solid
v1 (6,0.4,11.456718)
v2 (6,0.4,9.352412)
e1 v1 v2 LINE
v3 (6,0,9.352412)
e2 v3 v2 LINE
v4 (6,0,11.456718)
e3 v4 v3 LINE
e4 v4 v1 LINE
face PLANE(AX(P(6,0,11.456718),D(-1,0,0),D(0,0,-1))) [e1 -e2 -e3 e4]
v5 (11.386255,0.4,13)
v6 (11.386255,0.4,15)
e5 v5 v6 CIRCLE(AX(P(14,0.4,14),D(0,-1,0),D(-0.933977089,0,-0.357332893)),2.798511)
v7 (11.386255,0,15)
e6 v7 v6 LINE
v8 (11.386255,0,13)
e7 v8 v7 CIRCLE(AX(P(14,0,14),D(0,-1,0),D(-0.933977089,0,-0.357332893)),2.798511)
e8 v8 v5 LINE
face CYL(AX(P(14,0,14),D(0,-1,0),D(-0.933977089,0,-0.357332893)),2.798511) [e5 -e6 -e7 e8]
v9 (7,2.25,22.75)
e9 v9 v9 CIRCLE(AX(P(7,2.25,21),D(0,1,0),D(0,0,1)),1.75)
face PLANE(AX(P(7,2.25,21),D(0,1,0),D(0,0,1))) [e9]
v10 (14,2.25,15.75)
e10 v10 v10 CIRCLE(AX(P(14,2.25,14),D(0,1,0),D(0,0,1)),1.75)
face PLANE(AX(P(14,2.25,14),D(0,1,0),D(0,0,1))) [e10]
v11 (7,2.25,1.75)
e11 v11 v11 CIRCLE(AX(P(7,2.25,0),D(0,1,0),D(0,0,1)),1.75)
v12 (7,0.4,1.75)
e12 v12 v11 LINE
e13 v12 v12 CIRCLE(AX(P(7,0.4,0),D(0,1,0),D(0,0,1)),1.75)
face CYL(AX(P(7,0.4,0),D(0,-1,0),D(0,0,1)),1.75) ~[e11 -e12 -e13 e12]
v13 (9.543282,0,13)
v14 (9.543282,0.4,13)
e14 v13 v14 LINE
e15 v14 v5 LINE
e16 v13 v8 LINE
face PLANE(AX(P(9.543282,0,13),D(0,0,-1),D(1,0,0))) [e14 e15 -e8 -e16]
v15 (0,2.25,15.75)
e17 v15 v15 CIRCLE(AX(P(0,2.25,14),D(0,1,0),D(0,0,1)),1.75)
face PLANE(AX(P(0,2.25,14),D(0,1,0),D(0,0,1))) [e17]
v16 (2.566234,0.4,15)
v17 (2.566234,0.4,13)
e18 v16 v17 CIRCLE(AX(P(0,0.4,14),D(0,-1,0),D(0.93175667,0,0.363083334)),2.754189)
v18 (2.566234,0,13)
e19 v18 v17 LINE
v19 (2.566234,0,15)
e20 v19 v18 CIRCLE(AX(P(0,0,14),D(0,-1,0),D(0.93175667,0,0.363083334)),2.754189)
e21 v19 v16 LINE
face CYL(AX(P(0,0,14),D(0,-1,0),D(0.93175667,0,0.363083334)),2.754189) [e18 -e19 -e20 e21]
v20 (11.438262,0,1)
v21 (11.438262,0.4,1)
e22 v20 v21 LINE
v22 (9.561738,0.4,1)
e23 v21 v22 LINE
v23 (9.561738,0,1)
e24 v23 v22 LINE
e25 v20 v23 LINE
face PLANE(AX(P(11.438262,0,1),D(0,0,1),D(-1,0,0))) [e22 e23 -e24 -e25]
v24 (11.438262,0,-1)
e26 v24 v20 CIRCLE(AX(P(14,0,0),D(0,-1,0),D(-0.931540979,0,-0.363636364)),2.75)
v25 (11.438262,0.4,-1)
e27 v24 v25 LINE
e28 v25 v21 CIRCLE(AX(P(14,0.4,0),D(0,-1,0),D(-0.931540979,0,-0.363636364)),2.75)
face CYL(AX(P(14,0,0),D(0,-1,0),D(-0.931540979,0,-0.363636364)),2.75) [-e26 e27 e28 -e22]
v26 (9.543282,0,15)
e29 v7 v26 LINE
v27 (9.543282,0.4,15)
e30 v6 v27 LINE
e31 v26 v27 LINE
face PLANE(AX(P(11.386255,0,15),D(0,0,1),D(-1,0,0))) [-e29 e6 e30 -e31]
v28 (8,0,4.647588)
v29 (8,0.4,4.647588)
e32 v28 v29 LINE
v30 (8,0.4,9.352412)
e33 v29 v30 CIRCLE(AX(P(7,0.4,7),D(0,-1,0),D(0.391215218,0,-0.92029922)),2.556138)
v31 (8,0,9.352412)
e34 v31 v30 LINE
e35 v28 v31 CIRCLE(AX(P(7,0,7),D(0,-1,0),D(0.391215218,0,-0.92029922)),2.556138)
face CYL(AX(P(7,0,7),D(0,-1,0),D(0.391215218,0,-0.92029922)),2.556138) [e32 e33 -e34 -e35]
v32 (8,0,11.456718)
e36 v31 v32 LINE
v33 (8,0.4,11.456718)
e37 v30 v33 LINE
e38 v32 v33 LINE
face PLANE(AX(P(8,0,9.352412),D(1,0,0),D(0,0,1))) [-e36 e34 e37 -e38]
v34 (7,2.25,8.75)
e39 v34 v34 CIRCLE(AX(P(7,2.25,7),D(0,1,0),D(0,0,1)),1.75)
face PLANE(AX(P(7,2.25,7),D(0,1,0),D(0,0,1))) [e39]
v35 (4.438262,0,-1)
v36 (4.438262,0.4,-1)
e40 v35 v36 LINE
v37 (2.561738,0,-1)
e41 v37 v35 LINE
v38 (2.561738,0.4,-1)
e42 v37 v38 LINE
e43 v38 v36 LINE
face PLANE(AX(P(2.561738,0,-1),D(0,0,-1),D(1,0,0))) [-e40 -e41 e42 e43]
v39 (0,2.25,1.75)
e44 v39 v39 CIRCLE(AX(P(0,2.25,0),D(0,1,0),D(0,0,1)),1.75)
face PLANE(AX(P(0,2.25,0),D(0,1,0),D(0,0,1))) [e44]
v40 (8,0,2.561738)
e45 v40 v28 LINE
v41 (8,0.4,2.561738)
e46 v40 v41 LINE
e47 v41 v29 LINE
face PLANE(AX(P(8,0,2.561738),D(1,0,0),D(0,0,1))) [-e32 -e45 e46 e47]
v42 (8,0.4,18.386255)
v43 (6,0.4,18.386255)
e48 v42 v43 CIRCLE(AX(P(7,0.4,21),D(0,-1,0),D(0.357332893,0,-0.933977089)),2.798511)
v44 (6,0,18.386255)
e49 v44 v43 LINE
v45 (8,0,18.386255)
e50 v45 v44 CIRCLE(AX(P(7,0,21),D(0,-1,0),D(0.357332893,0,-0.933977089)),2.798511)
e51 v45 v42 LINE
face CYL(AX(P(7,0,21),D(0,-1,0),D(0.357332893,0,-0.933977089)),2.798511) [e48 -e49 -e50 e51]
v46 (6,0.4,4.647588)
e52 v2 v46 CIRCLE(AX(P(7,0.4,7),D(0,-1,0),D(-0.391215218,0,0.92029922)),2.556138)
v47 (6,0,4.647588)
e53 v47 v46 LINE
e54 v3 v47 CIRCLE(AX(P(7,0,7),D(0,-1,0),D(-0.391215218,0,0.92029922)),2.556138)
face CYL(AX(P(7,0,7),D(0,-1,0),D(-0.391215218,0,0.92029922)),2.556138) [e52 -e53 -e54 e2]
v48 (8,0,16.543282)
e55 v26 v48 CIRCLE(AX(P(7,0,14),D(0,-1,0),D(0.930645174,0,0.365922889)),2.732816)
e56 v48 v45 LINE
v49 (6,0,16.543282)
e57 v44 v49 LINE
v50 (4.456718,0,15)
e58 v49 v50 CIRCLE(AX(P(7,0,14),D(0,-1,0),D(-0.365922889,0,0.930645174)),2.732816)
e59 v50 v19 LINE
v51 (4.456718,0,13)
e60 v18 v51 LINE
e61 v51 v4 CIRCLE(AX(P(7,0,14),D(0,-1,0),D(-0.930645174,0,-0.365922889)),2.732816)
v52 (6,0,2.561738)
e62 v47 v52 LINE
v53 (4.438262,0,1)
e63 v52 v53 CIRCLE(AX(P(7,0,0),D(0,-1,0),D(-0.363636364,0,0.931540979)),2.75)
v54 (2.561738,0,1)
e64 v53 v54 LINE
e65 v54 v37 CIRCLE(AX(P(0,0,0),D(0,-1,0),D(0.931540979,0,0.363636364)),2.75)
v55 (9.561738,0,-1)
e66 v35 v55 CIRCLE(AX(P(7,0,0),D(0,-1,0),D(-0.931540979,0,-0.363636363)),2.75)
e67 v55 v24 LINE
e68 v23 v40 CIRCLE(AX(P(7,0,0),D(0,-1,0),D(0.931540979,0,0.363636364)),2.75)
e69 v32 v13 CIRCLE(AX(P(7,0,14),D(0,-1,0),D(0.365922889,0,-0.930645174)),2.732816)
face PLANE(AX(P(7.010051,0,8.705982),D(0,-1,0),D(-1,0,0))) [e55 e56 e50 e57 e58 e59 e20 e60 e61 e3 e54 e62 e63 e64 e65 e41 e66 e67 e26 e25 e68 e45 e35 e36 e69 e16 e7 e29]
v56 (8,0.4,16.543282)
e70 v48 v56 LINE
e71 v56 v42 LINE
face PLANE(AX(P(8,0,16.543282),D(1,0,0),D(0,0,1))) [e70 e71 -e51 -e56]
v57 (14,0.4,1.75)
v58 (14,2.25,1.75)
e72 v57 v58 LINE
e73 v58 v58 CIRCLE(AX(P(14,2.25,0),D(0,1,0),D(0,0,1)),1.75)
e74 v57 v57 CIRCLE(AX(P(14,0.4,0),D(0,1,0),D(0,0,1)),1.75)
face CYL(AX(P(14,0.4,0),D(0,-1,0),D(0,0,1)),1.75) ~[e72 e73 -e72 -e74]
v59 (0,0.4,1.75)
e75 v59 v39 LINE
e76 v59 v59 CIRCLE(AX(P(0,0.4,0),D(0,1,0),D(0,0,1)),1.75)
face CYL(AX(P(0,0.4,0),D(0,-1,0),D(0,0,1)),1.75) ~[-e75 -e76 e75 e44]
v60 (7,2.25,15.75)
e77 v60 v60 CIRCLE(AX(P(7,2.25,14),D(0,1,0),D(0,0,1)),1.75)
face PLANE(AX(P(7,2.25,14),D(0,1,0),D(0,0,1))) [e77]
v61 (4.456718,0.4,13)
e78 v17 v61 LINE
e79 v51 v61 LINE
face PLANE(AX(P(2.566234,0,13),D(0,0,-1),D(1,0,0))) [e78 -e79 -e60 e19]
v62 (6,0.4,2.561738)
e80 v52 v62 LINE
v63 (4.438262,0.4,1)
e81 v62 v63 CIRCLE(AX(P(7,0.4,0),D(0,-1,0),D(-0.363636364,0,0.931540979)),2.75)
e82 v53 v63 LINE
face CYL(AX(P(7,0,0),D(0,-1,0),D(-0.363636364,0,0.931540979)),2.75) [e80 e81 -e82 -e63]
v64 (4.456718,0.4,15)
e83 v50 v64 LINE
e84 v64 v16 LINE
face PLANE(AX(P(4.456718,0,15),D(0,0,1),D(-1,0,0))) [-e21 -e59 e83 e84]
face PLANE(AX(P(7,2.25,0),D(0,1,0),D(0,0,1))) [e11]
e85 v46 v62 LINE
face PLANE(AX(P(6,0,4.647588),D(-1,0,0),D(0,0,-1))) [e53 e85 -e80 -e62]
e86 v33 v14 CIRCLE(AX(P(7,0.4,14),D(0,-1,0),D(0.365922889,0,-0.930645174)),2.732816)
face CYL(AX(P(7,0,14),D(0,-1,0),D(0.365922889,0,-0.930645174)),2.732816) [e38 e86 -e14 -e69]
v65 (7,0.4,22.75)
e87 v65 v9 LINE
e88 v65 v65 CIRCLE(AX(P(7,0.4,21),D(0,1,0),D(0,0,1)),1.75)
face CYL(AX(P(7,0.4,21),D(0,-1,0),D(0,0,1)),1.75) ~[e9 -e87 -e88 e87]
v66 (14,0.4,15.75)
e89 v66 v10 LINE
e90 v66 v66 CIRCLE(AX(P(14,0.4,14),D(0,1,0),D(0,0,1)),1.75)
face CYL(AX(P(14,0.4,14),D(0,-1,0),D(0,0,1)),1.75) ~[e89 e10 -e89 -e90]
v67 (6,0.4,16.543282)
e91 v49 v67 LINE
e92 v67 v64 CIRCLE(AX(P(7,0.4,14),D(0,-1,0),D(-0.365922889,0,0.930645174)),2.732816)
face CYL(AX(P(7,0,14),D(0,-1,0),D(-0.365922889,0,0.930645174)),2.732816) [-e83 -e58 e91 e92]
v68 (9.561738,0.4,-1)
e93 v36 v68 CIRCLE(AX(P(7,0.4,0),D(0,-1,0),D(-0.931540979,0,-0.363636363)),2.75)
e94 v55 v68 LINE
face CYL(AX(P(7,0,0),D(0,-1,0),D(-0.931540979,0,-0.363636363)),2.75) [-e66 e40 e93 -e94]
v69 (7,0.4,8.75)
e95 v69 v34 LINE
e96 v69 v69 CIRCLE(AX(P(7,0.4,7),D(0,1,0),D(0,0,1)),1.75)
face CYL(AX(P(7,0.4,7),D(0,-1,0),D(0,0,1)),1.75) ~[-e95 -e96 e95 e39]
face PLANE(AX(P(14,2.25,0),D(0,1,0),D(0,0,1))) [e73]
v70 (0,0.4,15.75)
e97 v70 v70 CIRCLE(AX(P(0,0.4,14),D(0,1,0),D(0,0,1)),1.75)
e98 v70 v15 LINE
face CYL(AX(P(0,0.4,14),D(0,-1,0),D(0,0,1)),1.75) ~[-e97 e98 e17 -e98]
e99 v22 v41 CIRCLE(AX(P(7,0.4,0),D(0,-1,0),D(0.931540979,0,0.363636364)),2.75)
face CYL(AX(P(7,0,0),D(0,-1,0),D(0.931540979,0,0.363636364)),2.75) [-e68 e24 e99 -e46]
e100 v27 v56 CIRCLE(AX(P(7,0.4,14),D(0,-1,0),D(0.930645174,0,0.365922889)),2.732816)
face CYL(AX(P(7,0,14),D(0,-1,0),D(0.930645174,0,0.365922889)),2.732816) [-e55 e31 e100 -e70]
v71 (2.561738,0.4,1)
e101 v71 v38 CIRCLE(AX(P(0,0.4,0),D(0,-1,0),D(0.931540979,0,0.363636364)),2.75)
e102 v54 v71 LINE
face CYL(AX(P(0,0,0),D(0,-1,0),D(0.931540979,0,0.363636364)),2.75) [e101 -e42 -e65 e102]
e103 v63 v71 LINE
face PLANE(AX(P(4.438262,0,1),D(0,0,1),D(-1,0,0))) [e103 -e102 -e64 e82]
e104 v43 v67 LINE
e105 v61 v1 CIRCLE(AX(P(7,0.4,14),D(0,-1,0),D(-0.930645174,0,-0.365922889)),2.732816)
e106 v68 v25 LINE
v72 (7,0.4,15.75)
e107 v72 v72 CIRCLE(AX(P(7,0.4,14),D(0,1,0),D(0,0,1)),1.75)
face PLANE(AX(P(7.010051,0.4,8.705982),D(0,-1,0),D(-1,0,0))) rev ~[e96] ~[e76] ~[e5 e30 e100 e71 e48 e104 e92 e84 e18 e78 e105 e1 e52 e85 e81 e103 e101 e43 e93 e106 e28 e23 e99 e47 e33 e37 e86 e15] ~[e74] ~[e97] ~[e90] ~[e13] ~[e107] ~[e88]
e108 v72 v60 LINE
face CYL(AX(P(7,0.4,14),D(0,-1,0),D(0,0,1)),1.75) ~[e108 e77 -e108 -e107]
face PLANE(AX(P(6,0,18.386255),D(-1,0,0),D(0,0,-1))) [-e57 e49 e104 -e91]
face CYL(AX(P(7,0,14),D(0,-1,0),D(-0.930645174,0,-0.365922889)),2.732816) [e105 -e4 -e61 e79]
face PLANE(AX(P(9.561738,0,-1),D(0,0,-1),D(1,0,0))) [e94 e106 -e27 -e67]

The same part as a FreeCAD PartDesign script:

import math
import FreeCAD as App
import Part
import Sketcher
Q = App.Units.Quantity

doc = App.newDocument("Part")
params = doc.addObject("Spreadsheet::Sheet", "Params")
for row, (alias, value) in enumerate([
    ("sketch1_radius", "2.75 mm"),
    ("pad1_length", "0.4 mm"),
    ("sketch2_diameter", "3.5 mm"),
    ("pad2_length", "1.85 mm"),
], start=1):
    params.set(f"A{row}", alias)
    params.set(f"B{row}", "=" + value)
    params.setAlias(f"B{row}", alias)

body = doc.addObject("PartDesign::Body", "Body")

sketch1 = body.newObject("Sketcher::SketchObject", "Sketch")
sketch1.AttachmentSupport = (doc.getObject("XZ_Plane"), [""])
sketch1.MapMode = "FlatFace"
sketch1.addGeometry([
    Part.LineSegment(App.Vector(4.438262, -1, 0), App.Vector(2.561738, -1, 0)),
    Part.ArcOfCircle(Part.Circle(App.Vector(0, 0, 0), App.Vector(0, 0, 1), 2.75), math.radians(21.323686), math.radians(338.676314)),
    Part.LineSegment(App.Vector(2.561738, 1, 0), App.Vector(4.438262, 1, 0)),
    Part.ArcOfCircle(Part.Circle(App.Vector(7, 0, 0), App.Vector(0, 0, 1), 2.75), math.radians(111.323686), math.radians(158.676314)),
    Part.LineSegment(App.Vector(6, 2.561738, 0), App.Vector(6, 4.647588, 0)),
    Part.ArcOfCircle(Part.Circle(App.Vector(7, 7, 0), App.Vector(0, 0, 1), 2.556138), math.radians(113.030135), math.radians(246.969865)),
    Part.LineSegment(App.Vector(6, 9.352412, 0), App.Vector(6, 11.456718, 0)),
    Part.ArcOfCircle(Part.Circle(App.Vector(7, 14, 0), App.Vector(0, 0, 1), 2.732816), math.radians(-158.53561), math.radians(-111.46439)),
    Part.LineSegment(App.Vector(4.456718, 13, 0), App.Vector(2.566234, 13, 0)),
    Part.ArcOfCircle(Part.Circle(App.Vector(0, 14, 0), App.Vector(0, 0, 1), 2.754189), math.radians(21.289675), math.radians(338.710325)),
    Part.LineSegment(App.Vector(2.566234, 15, 0), App.Vector(4.456718, 15, 0)),
    Part.ArcOfCircle(Part.Circle(App.Vector(7, 14, 0), App.Vector(0, 0, 1), 2.732816), math.radians(111.46439), math.radians(158.53561)),
    Part.LineSegment(App.Vector(6, 16.543282, 0), App.Vector(6, 18.386255, 0)),
    Part.ArcOfCircle(Part.Circle(App.Vector(7, 21, 0), App.Vector(0, 0, 1), 2.798511), math.radians(-69.06351), math.radians(249.06351)),
    Part.LineSegment(App.Vector(8, 18.386255, 0), App.Vector(8, 16.543282, 0)),
    Part.ArcOfCircle(Part.Circle(App.Vector(7, 14, 0), App.Vector(0, 0, 1), 2.732816), math.radians(21.46439), math.radians(68.53561)),
    Part.LineSegment(App.Vector(9.543282, 15, 0), App.Vector(11.386255, 15, 0)),
    Part.ArcOfCircle(Part.Circle(App.Vector(14, 14, 0), App.Vector(0, 0, 1), 2.798511), math.radians(-159.06351), math.radians(159.06351)),
    Part.LineSegment(App.Vector(11.386255, 13, 0), App.Vector(9.543282, 13, 0)),
    Part.ArcOfCircle(Part.Circle(App.Vector(7, 14, 0), App.Vector(0, 0, 1), 2.732816), math.radians(-68.53561), math.radians(-21.46439)),
    Part.LineSegment(App.Vector(8, 11.456718, 0), App.Vector(8, 9.352412, 0)),
    Part.ArcOfCircle(Part.Circle(App.Vector(7, 7, 0), App.Vector(0, 0, 1), 2.556138), math.radians(-66.969865), math.radians(66.969865)),
    Part.LineSegment(App.Vector(8, 4.647588, 0), App.Vector(8, 2.561738, 0)),
    Part.ArcOfCircle(Part.Circle(App.Vector(7, 0, 0), App.Vector(0, 0, 1), 2.75), math.radians(21.323686), math.radians(68.676314)),
    Part.LineSegment(App.Vector(9.561738, 1, 0), App.Vector(11.438262, 1, 0)),
    Part.ArcOfCircle(Part.Circle(App.Vector(14, 0, 0), App.Vector(0, 0, 1), 2.75), math.radians(-158.676314), math.radians(158.676314)),
    Part.LineSegment(App.Vector(11.438262, -1, 0), App.Vector(9.561738, -1, 0)),
    Part.ArcOfCircle(Part.Circle(App.Vector(7, 0, 0), App.Vector(0, 0, 1), 2.75), math.radians(-158.676314), math.radians(-21.323686)),
], False)
sketch1.addConstraint([
    Sketcher.Constraint("Coincident", 0, 2, 1, 2),
    Sketcher.Constraint("Coincident", 1, 1, 2, 1),
    Sketcher.Constraint("Coincident", 2, 2, 3, 2),
    Sketcher.Constraint("Coincident", 3, 1, 4, 1),
    Sketcher.Constraint("Coincident", 4, 2, 5, 2),
    Sketcher.Constraint("Coincident", 5, 1, 6, 1),
    Sketcher.Constraint("Coincident", 6, 2, 7, 2),
    Sketcher.Constraint("Coincident", 7, 1, 8, 1),
    Sketcher.Constraint("Coincident", 8, 2, 9, 2),
    Sketcher.Constraint("Coincident", 9, 1, 10, 1),
    Sketcher.Constraint("Coincident", 10, 2, 11, 2),
    Sketcher.Constraint("Coincident", 11, 1, 12, 1),
    Sketcher.Constraint("Coincident", 12, 2, 13, 2),
    Sketcher.Constraint("Coincident", 13, 1, 14, 1),
    Sketcher.Constraint("Coincident", 14, 2, 15, 2),
    Sketcher.Constraint("Coincident", 15, 1, 16, 1),
    Sketcher.Constraint("Coincident", 16, 2, 17, 2),
    Sketcher.Constraint("Coincident", 17, 1, 18, 1),
    Sketcher.Constraint("Coincident", 18, 2, 19, 2),
    Sketcher.Constraint("Coincident", 19, 1, 20, 1),
    Sketcher.Constraint("Coincident", 20, 2, 21, 2),
    Sketcher.Constraint("Coincident", 21, 1, 22, 1),
    Sketcher.Constraint("Coincident", 22, 2, 23, 2),
    Sketcher.Constraint("Coincident", 23, 1, 24, 1),
    Sketcher.Constraint("Coincident", 24, 2, 25, 2),
    Sketcher.Constraint("Coincident", 25, 1, 26, 1),
    Sketcher.Constraint("Coincident", 26, 2, 27, 2),
    Sketcher.Constraint("Coincident", 27, 1, 0, 1),
    Sketcher.Constraint("Horizontal", 0),
    Sketcher.Constraint("Horizontal", 2),
    Sketcher.Constraint("Vertical", 4),
    Sketcher.Constraint("Vertical", 6),
    Sketcher.Constraint("Horizontal", 8),
    Sketcher.Constraint("Horizontal", 10),
    Sketcher.Constraint("Vertical", 12),
    Sketcher.Constraint("Vertical", 14),
    Sketcher.Constraint("Horizontal", 16),
    Sketcher.Constraint("Horizontal", 18),
    Sketcher.Constraint("Vertical", 20),
    Sketcher.Constraint("Vertical", 22),
    Sketcher.Constraint("Horizontal", 24),
    Sketcher.Constraint("Horizontal", 26),
    Sketcher.Constraint("Coincident", 1, 3, -1, 1),
    Sketcher.Constraint("Coincident", 11, 3, 7, 3),
    Sketcher.Constraint("Coincident", 15, 3, 7, 3),
    Sketcher.Constraint("Coincident", 19, 3, 7, 3),
    Sketcher.Constraint("Coincident", 21, 3, 5, 3),
    Sketcher.Constraint("Coincident", 23, 3, 3, 3),
    Sketcher.Constraint("Coincident", 27, 3, 3, 3),
    Sketcher.Constraint("Equal", 1, 3),
    Sketcher.Constraint("Equal", 7, 11),
    Sketcher.Constraint("Equal", 11, 15),
    Sketcher.Constraint("Equal", 13, 17),
    Sketcher.Constraint("Equal", 15, 19),
    Sketcher.Constraint("Equal", 5, 21),
    Sketcher.Constraint("Equal", 3, 23),
    Sketcher.Constraint("Equal", 23, 25),
    Sketcher.Constraint("Equal", 25, 27),
    Sketcher.Constraint("Symmetric", 24, 2, 25, 1, -1),
    Sketcher.Constraint("Symmetric", 2, 2, 27, 1, -1),
    Sketcher.Constraint("PointOnObject", 9, 3, -2),
    Sketcher.Constraint("Horizontal", 7, 3, 9, 3),
    Sketcher.Constraint("Horizontal", 15, 3, 17, 3),
    Sketcher.Constraint("Horizontal", 12, 2, 13, 1),
    Sketcher.Constraint("Horizontal", 11, 1, 14, 2),
    Sketcher.Constraint("Horizontal", 10, 2, 15, 1),
    Sketcher.Constraint("Horizontal", 8, 2, 17, 1),
    Sketcher.Constraint("Horizontal", 6, 2, 19, 1),
    Sketcher.Constraint("Horizontal", 5, 1, 20, 2),
    Sketcher.Constraint("Horizontal", 4, 2, 21, 1),
    Sketcher.Constraint("Horizontal", 3, 1, 22, 2),
    Sketcher.Constraint("Horizontal", 2, 2, 23, 1),
    Sketcher.Constraint("Vertical", 17, 3, 25, 3),
    Sketcher.Constraint("Vertical", 4, 2, 5, 1),
    Sketcher.Constraint("Vertical", 8, 2, 9, 1),
    Sketcher.Constraint("Vertical", 6, 2, 11, 1),
    Sketcher.Constraint("Equal", 2, 24),
    Sketcher.Constraint("Equal", 18, 12),
    Sketcher.Constraint("Radius", 1, Q("2.75 mm")),
    Sketcher.Constraint("DistanceX", -1, 1, 3, 3, Q("7 mm")),
    Sketcher.Constraint("DistanceY", -1, 1, 5, 3, Q("7 mm")),
    Sketcher.Constraint("DistanceY", -1, 1, 7, 3, Q("14 mm")),
    Sketcher.Constraint("DistanceY", -1, 1, 13, 3, Q("21 mm")),
    Sketcher.Constraint("DistanceY", 0, 2, -1, 1, Q("1 mm")),
    Sketcher.Constraint("DistanceX", -1, 1, 3, 1, Q("6 mm")),
    Sketcher.Constraint("Radius", 9, Q("2.754189 mm")),
    Sketcher.Constraint("Radius", 13, Q("2.798511 mm")),
    Sketcher.Constraint("Radius", 5, Q("2.556138 mm")),
    Sketcher.Constraint("Radius", 7, Q("2.732816 mm")),
])
sketch1.setExpression("Constraints[78]", "Params.sketch1_radius")
pad1 = body.newObject("PartDesign::Pad", "Pad")
pad1.Profile = sketch1
pad1.setExpression("Length", "Params.pad1_length")
pad1.Reversed = True

sketch2 = body.newObject("Sketcher::SketchObject", "Sketch001")
sketch2.AttachmentSupport = (doc.getObject("XZ_Plane"), [""])
sketch2.MapMode = "FlatFace"
sketch2.AttachmentOffset = App.Placement(App.Vector(0, 0, -0.4), App.Rotation())
sketch2.addGeometry([
    Part.Circle(App.Vector(0, 0, 0), App.Vector(0, 0, 1), 1.75),
    Part.Circle(App.Vector(7, 0, 0), App.Vector(0, 0, 1), 1.75),
    Part.Circle(App.Vector(14, 0, 0), App.Vector(0, 0, 1), 1.75),
    Part.Circle(App.Vector(7, 7, 0), App.Vector(0, 0, 1), 1.75),
    Part.Circle(App.Vector(7, 14, 0), App.Vector(0, 0, 1), 1.75),
    Part.Circle(App.Vector(14, 14, 0), App.Vector(0, 0, 1), 1.75),
    Part.Circle(App.Vector(0, 14, 0), App.Vector(0, 0, 1), 1.75),
    Part.Circle(App.Vector(7, 21, 0), App.Vector(0, 0, 1), 1.75),
], False)
sketch2.addConstraint([
    Sketcher.Constraint("Coincident", 0, 3, -1, 1),
    Sketcher.Constraint("Equal", 0, 1),
    Sketcher.Constraint("Equal", 1, 2),
    Sketcher.Constraint("Equal", 2, 3),
    Sketcher.Constraint("Equal", 3, 4),
    Sketcher.Constraint("Equal", 4, 5),
    Sketcher.Constraint("Equal", 5, 6),
    Sketcher.Constraint("Equal", 6, 7),
    Sketcher.Constraint("PointOnObject", 1, 3, -1),
    Sketcher.Constraint("PointOnObject", 2, 3, -1),
    Sketcher.Constraint("PointOnObject", 6, 3, -2),
    Sketcher.Constraint("Horizontal", 4, 3, 5, 3),
    Sketcher.Constraint("Horizontal", 5, 3, 6, 3),
    Sketcher.Constraint("Vertical", 1, 3, 3, 3),
    Sketcher.Constraint("Vertical", 3, 3, 4, 3),
    Sketcher.Constraint("Vertical", 2, 3, 5, 3),
    Sketcher.Constraint("Vertical", 4, 3, 7, 3),
    Sketcher.Constraint("Diameter", 0, Q("3.5 mm")),
    Sketcher.Constraint("DistanceX", -1, 1, 1, 3, Q("7 mm")),
    Sketcher.Constraint("DistanceX", -1, 1, 2, 3, Q("14 mm")),
    Sketcher.Constraint("DistanceY", -1, 1, 3, 3, Q("7 mm")),
    Sketcher.Constraint("DistanceY", -1, 1, 4, 3, Q("14 mm")),
    Sketcher.Constraint("DistanceY", -1, 1, 7, 3, Q("21 mm")),
])
sketch2.setExpression("Constraints[17]", "Params.sketch2_diameter")
pad2 = body.newObject("PartDesign::Pad", "Pad001")
pad2.Profile = sketch2
pad2.setExpression("Length", "Params.pad2_length")
pad2.Reversed = True

doc.recompute()
